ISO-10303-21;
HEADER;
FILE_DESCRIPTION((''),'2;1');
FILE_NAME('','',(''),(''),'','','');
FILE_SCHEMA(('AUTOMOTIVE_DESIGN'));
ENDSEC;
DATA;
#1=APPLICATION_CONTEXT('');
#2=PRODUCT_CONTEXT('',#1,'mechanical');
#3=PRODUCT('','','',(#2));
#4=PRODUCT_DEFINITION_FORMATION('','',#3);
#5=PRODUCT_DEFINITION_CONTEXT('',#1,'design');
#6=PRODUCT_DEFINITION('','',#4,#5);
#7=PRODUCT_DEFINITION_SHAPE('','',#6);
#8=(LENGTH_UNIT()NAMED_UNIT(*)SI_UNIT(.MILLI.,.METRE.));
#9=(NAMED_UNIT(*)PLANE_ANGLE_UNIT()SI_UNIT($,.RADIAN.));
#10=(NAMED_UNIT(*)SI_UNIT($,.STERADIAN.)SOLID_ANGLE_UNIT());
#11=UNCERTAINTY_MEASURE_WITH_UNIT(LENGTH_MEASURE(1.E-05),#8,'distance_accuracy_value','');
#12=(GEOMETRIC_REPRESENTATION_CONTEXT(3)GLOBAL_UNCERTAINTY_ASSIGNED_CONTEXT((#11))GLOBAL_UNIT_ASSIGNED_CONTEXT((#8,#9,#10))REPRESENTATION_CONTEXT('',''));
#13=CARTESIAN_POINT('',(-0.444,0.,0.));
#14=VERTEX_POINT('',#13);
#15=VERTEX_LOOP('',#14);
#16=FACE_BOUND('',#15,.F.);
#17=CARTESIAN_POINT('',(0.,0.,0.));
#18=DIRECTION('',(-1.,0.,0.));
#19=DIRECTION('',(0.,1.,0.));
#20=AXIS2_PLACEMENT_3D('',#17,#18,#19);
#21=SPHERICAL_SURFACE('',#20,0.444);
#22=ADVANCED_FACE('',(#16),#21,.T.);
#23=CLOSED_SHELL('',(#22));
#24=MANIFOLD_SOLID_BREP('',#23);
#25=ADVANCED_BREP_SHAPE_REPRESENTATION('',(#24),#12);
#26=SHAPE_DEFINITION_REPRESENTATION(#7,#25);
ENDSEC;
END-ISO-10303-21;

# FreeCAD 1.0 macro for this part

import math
import FreeCAD as App
import Part
import Sketcher
from FreeCAD import Vector
Q = App.Units.Quantity

doc = App.newDocument("Part")
params = doc.addObject("Spreadsheet::Sheet", "Params")
for row, (alias, value) in enumerate([
    ("revolution_angle", "360 deg"),
], start=1):
    params.set(f"A{row}", alias)
    params.set(f"B{row}", "=" + value)
    params.setAlias(f"B{row}", alias)

body = doc.addObject("PartDesign::Body", "Body")

sketch1 = body.newObject("Sketcher::SketchObject", "Sketch")
sketch1.AttachmentSupport = (doc.getObject("XY_Plane"), [""])
sketch1.MapMode = "FlatFace"
sketch1.addGeometry([
    Part.LineSegment(Vector(-0.44, 0, 0), Vector(0.44, 0, 0)),
    Part.ArcOfCircle(Part.Circle(Vector(0, 0, 0), Vector(0, 0, 1), 0.44), math.radians(0), math.radians(180)),
], False)
sketch1.addConstraint([
    Sketcher.Constraint("Coincident", 0, 1, 1, 2),
    Sketcher.Constraint("Coincident", 1, 1, 0, 2),
    Sketcher.Constraint("Horizontal", 0),
    Sketcher.Constraint("Coincident", 1, 3, -1, 1),
    Sketcher.Constraint("PointOnObject", 0, 1, -1),
    Sketcher.Constraint("Radius", 1, Q("0.444 mm")),
])
revolution = body.newObject("PartDesign::Revolution", "Revolution")
revolution.Profile = sketch1
revolution.ReferenceAxis = (sketch1, ["H_Axis"])
revolution.setExpression("Angle", "Params.revolution_angle")

doc.recompute()
